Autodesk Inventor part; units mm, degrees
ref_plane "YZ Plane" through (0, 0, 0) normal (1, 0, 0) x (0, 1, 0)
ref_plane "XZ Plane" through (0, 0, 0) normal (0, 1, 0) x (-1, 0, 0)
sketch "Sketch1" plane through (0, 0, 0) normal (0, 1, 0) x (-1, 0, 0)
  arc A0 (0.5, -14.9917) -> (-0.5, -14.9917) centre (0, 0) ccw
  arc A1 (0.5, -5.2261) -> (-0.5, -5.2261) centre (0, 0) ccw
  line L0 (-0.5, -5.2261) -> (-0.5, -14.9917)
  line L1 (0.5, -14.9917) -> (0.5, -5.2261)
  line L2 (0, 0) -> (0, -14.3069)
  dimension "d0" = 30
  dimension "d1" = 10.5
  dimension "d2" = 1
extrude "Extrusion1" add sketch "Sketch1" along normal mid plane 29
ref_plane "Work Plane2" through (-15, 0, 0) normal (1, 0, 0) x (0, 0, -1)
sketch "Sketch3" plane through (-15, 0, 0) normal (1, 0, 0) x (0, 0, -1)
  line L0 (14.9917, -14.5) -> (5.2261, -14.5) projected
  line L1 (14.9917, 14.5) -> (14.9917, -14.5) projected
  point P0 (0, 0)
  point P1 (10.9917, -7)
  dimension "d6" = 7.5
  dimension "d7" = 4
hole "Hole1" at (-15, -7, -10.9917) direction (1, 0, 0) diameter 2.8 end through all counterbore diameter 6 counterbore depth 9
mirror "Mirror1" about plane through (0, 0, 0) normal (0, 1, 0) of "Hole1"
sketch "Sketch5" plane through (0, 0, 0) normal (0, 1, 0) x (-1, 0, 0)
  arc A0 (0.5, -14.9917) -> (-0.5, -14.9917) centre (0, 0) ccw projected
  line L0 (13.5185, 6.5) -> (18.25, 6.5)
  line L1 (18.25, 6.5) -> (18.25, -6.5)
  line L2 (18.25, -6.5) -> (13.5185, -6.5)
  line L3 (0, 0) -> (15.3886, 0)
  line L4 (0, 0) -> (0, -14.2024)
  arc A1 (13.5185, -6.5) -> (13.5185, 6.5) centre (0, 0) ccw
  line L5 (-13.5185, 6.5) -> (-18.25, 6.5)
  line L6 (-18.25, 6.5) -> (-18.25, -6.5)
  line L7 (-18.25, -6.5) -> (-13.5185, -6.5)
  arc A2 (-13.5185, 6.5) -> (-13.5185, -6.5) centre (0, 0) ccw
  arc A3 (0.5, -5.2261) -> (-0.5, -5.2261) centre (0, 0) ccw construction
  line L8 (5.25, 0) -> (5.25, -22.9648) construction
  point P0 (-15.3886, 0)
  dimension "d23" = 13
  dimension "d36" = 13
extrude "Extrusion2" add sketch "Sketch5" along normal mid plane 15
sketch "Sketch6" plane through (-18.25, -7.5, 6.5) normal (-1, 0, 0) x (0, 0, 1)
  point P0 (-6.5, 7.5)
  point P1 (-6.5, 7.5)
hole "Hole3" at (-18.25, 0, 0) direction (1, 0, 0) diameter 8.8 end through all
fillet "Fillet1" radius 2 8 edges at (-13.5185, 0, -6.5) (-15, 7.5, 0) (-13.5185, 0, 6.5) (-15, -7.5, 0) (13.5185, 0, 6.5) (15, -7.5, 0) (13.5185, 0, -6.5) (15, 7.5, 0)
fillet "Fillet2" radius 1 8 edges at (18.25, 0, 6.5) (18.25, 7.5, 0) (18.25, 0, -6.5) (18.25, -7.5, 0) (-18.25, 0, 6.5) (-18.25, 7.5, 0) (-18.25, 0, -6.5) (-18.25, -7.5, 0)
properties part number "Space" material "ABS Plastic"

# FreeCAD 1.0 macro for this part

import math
import FreeCAD as App
import Part
import Sketcher
from FreeCAD import Vector


def edges_at(feature, points):
    """Names of the edges that pass closest to the given points."""
    edges = feature.Shape.Edges
    near = lambda p: min(range(len(edges)), key=lambda i: edges[i].distToShape(Part.Vertex(*p))[0])
    return sorted({f"Edge{near(p) + 1}" for p in points})

doc = App.newDocument("Part")
body = doc.addObject("PartDesign::Body", "Body")

# Sketch on XZ plane
sketch1 = doc.addObject("Sketcher::SketchObject", "Sketch")
body.addObject(sketch1)
sketch1.AttachmentSupport = (doc.XZ_Plane, [""])
sketch1.MapMode = "FlatFace"
sketch1.addGeometry(Part.LineSegment(Vector(-0.5, -5.2261, 0), Vector(-0.5, -14.9917, 0)), False)
sketch1.addGeometry(Part.ArcOfCircle(Part.Circle(Vector(0, 0, 0), Vector(0, 0, 1), 15.000036), math.radians(-88.089791), math.radians(268.089791)), False)
sketch1.addGeometry(Part.LineSegment(Vector(0.5, -14.9917, 0), Vector(0.5, -5.2261, 0)), False)
sketch1.addGeometry(Part.ArcOfCircle(Part.Circle(Vector(0, 0, 0), Vector(0, 0, 1), 5.249964), math.radians(-84.534939), math.radians(264.534939)), False)
sketch1.addConstraint(Sketcher.Constraint("Coincident", 0, 2, 1, 2))
sketch1.addConstraint(Sketcher.Constraint("Coincident", 1, 1, 2, 1))
sketch1.addConstraint(Sketcher.Constraint("Coincident", 2, 2, 3, 1))
sketch1.addConstraint(Sketcher.Constraint("Coincident", 3, 2, 0, 1))
sketch1.addConstraint(Sketcher.Constraint("Vertical", 0))
sketch1.addConstraint(Sketcher.Constraint("Vertical", 2))
sketch1.addConstraint(Sketcher.Constraint("Coincident", 1, 3, -1, 1))
sketch1.addConstraint(Sketcher.Constraint("Coincident", 3, 3, -1, 1))
sketch1.addConstraint(Sketcher.Constraint("Horizontal", 0, 2, 1, 1))
sketch1.addConstraint(Sketcher.Constraint("Radius", 1, 15.0))
sketch1.addConstraint(Sketcher.Constraint("Radius", 3, 5.25))
sketch1.addConstraint(Sketcher.Constraint("DistanceX", 0, 2, 1, 1, 1.0))
pad1 = doc.addObject("PartDesign::Pad", "Pad")
body.addObject(pad1)
pad1.Profile = sketch1
pad1.Length = 29
pad1.Midplane = True

# Sketch on YZ plane
sketch2 = doc.addObject("Sketcher::SketchObject", "Sketch001")
body.addObject(sketch2)
sketch2.AttachmentSupport = (doc.YZ_Plane, [""])
sketch2.MapMode = "FlatFace"
sketch2.AttachmentOffset = App.Placement(Vector(0, 0, -15), App.Rotation())
sketch2.addGeometry(Part.Circle(Vector(-7, -10.9917, 0), Vector(0, 0, 1), 1.4), False)
sketch2.addConstraint(Sketcher.Constraint("Diameter", 0, 2.8))
sketch2.addConstraint(Sketcher.Constraint("DistanceX", 0, 3, -1, 1, 7.0))
sketch2.addConstraint(Sketcher.Constraint("DistanceY", 0, 3, -1, 1, 10.9917))
doc.recompute()
hole = doc.addObject("PartDesign::Hole", "Hole")
body.addObject(hole)
hole.Profile = sketch2
hole.ThreadType = "None"
hole.Diameter = 2.8
hole.DepthType = "ThroughAll"
hole.HoleCutType = "Counterbore"
hole.HoleCutDiameter = 6
hole.HoleCutDepth = 9
hole.Reversed = True
doc.recompute()

mirrored = doc.addObject("PartDesign::Mirrored", "Mirrored")
body.addObject(mirrored)
mirrored.Originals = [hole]
mirrored.MirrorPlane = (doc.XZ_Plane, [""])
body.Tip = mirrored

# Sketch on XZ plane
sketch3 = doc.addObject("Sketcher::SketchObject", "Sketch002")
body.addObject(sketch3)
sketch3.AttachmentSupport = (doc.XZ_Plane, [""])
sketch3.MapMode = "FlatFace"
sketch3.addGeometry(Part.ArcOfCircle(Part.Circle(Vector(0, 0, 0), Vector(0, 0, 1), 15.000036), math.radians(-25.679298), math.radians(25.679298)), False)
sketch3.addGeometry(Part.LineSegment(Vector(13.5185, 6.5, 0), Vector(18.25, 6.5, 0)), False)
sketch3.addGeometry(Part.LineSegment(Vector(18.25, 6.5, 0), Vector(18.25, -6.5, 0)), False)
sketch3.addGeometry(Part.LineSegment(Vector(18.25, -6.5, 0), Vector(13.5185, -6.5, 0)), False)
sketch3.addGeometry(Part.LineSegment(Vector(-18.25, 6.5, 0), Vector(-13.5185, 6.5, 0)), False)
sketch3.addGeometry(Part.ArcOfCircle(Part.Circle(Vector(0, 0, 0), Vector(0, 0, 1), 15.000036), math.radians(154.320702), math.radians(205.679298)), False)
sketch3.addGeometry(Part.LineSegment(Vector(-13.5185, -6.5, 0), Vector(-18.25, -6.5, 0)), False)
sketch3.addGeometry(Part.LineSegment(Vector(-18.25, -6.5, 0), Vector(-18.25, 6.5, 0)), False)
sketch3.addConstraint(Sketcher.Constraint("Coincident", 0, 2, 1, 1))
sketch3.addConstraint(Sketcher.Constraint("Coincident", 1, 2, 2, 1))
sketch3.addConstraint(Sketcher.Constraint("Coincident", 2, 2, 3, 1))
sketch3.addConstraint(Sketcher.Constraint("Coincident", 3, 2, 0, 1))
sketch3.addConstraint(Sketcher.Constraint("Coincident", 4, 2, 5, 1))
sketch3.addConstraint(Sketcher.Constraint("Coincident", 5, 2, 6, 1))
sketch3.addConstraint(Sketcher.Constraint("Coincident", 6, 2, 7, 1))
sketch3.addConstraint(Sketcher.Constraint("Coincident", 7, 2, 4, 1))
sketch3.addConstraint(Sketcher.Constraint("Horizontal", 1))
sketch3.addConstraint(Sketcher.Constraint("Vertical", 2))
sketch3.addConstraint(Sketcher.Constraint("Horizontal", 3))
sketch3.addConstraint(Sketcher.Constraint("Horizontal", 4))
sketch3.addConstraint(Sketcher.Constraint("Horizontal", 6))
sketch3.addConstraint(Sketcher.Constraint("Vertical", 7))
sketch3.addConstraint(Sketcher.Constraint("Coincident", 0, 3, -1, 1))
sketch3.addConstraint(Sketcher.Constraint("Coincident", 5, 3, -1, 1))
sketch3.addConstraint(Sketcher.Constraint("Equal", 0, 5))
sketch3.addConstraint(Sketcher.Constraint("Symmetric", 1, 2, 6, 2, -1, 1))
sketch3.addConstraint(Sketcher.Constraint("Horizontal", 1, 2, 4, 2))
sketch3.addConstraint(Sketcher.Constraint("Horizontal", 3, 2, 5, 2))
sketch3.addConstraint(Sketcher.Constraint("DistanceY", 2, 2, 2, 1, 13.0))
sketch3.addConstraint(Sketcher.Constraint("Radius", 0, 15.0))
sketch3.addConstraint(Sketcher.Constraint("DistanceX", -1, 1, 1, 2, 18.25))
pad2 = doc.addObject("PartDesign::Pad", "Pad001")
body.addObject(pad2)
pad2.Profile = sketch3
pad2.Length = 15
pad2.Midplane = True

# Sketch on YZ plane
sketch4 = doc.addObject("Sketcher::SketchObject", "Sketch003")
body.addObject(sketch4)
sketch4.AttachmentSupport = (doc.YZ_Plane, [""])
sketch4.MapMode = "FlatFace"
sketch4.AttachmentOffset = App.Placement(Vector(0, 0, -18.25), App.Rotation())
sketch4.addGeometry(Part.Circle(Vector(0, 0, 0), Vector(0, 0, 1), 4.4), False)
sketch4.addConstraint(Sketcher.Constraint("Coincident", 0, 3, -1, 1))
sketch4.addConstraint(Sketcher.Constraint("Diameter", 0, 8.8))
doc.recompute()
hole2 = doc.addObject("PartDesign::Hole", "Hole001")
body.addObject(hole2)
hole2.Profile = sketch4
hole2.ThreadType = "None"
hole2.Diameter = 8.8
hole2.DepthType = "ThroughAll"
hole2.Reversed = True
doc.recompute()

fillet = doc.addObject("PartDesign::Fillet", "Fillet")
body.addObject(fillet)
fillet.Base = (hole2, edges_at(hole2, [
    (-13.518, 0, -6.5),
    (-15, 7.5, 0),
    (-13.518, 0, 6.5),
    (-15, -7.5, 0),
    (13.518, 0, 6.5),
    (15, -7.5, 0),
    (13.518, 0, -6.5),
    (15, 7.5, 0),
]))
fillet.Radius = 2
doc.recompute()

fillet2 = doc.addObject("PartDesign::Fillet", "Fillet001")
body.addObject(fillet2)
fillet2.Base = (fillet, edges_at(fillet, [
    (18.25, 0, 6.5),
    (18.25, 7.5, 0),
    (18.25, 0, -6.5),
    (18.25, -7.5, 0),
    (-18.25, 0, 6.5),
    (-18.25, 7.5, 0),
    (-18.25, 0, -6.5),
    (-18.25, -7.5, 0),
]))
fillet2.Radius = 1

doc.recompute()
